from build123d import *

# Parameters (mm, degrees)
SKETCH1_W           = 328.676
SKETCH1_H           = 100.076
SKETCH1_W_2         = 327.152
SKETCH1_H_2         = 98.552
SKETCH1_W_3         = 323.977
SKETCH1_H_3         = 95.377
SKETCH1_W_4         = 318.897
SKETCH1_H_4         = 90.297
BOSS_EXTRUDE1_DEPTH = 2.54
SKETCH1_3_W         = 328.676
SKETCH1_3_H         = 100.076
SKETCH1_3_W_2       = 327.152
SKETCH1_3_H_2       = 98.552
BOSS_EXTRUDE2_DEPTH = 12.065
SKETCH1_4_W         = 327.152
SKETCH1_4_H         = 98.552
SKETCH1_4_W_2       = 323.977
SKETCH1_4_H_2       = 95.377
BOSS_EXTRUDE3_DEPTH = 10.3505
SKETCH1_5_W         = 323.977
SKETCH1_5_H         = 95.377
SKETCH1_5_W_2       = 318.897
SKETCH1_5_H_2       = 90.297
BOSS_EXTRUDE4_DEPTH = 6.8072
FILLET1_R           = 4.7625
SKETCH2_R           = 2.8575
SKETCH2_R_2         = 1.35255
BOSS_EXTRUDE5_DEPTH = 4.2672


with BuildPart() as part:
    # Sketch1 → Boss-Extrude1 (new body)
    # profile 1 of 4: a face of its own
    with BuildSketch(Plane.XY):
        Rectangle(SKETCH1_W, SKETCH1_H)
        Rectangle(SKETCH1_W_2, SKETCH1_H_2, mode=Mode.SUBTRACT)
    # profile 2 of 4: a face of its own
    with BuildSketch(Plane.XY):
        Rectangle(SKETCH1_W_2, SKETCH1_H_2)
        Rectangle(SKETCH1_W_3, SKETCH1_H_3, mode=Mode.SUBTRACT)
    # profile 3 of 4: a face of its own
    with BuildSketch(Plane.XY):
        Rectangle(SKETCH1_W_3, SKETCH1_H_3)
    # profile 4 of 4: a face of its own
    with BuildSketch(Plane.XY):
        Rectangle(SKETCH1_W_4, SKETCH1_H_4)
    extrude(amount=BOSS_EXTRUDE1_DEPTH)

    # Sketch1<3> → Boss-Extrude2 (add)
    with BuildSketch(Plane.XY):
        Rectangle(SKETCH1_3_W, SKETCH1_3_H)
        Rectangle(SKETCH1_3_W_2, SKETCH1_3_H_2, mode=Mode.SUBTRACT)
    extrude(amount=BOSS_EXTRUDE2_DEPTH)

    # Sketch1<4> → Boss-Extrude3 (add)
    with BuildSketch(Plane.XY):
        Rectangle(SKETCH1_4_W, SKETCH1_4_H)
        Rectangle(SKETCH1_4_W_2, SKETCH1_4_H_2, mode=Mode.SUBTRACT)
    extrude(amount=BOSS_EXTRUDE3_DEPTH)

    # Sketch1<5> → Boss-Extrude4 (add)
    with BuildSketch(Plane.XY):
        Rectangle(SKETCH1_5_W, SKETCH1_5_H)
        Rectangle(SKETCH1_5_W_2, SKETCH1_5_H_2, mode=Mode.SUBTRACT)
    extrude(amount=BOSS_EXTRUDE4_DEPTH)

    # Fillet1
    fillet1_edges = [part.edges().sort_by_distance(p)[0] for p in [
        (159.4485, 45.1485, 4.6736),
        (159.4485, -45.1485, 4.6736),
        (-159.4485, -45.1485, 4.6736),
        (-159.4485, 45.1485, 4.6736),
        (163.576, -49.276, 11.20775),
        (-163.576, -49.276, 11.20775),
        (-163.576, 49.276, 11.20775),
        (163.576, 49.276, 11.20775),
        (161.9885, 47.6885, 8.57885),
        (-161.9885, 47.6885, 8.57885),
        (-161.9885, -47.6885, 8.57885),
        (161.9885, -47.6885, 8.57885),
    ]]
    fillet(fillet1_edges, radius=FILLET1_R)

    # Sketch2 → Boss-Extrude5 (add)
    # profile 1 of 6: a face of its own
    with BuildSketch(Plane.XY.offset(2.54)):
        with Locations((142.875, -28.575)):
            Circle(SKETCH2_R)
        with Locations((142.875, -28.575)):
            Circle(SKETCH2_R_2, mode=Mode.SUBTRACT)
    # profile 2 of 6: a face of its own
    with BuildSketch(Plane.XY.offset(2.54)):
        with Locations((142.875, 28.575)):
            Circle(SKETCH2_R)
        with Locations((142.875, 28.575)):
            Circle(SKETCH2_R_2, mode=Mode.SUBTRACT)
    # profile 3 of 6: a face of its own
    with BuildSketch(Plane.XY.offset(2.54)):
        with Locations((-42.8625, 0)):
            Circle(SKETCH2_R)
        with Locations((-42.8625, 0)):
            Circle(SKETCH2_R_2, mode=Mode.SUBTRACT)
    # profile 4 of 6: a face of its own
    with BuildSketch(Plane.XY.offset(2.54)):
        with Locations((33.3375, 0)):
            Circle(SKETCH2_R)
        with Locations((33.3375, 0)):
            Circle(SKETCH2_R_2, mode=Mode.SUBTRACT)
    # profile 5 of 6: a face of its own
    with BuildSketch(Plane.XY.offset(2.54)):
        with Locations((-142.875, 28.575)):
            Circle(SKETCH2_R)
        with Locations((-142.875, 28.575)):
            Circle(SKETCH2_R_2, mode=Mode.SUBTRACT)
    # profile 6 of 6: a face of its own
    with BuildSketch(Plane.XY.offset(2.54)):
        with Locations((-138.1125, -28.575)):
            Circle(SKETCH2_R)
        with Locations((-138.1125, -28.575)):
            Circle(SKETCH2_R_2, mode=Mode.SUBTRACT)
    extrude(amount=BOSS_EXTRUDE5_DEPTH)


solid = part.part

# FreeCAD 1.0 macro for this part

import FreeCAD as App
import Part
import Sketcher

V = App.Vector
Q = App.Units.Quantity


def edges_at(feature, points):
    """Names of the edges that pass closest to the given points."""
    edges = feature.Shape.Edges
    near = lambda p: min(range(len(edges)), key=lambda i: edges[i].distToShape(Part.Vertex(*p))[0])
    return sorted({f"Edge{near(p) + 1}" for p in points})

doc = App.newDocument("Part")
body = doc.addObject("PartDesign::Body", "Body")

# Sketch on XY plane
sketch1 = body.newObject("Sketcher::SketchObject", "Sketch")
sketch1.AttachmentSupport = (doc.getObject("XY_Plane"), [""])
sketch1.MapMode = "FlatFace"
sketch1.addGeometry(Part.LineSegment(V(-164, 50, 0), V(-164, -50, 0)), False)
sketch1.addGeometry(Part.LineSegment(V(-164, -50, 0), V(164, -50, 0)), False)
sketch1.addGeometry(Part.LineSegment(V(164, -50, 0), V(164, 50, 0)), False)
sketch1.addGeometry(Part.LineSegment(V(164, 50, 0), V(-164, 50, 0)), False)
sketch1.addConstraint(Sketcher.Constraint("Coincident", 0, 2, 1, 1))
sketch1.addConstraint(Sketcher.Constraint("Coincident", 1, 2, 2, 1))
sketch1.addConstraint(Sketcher.Constraint("Coincident", 2, 2, 3, 1))
sketch1.addConstraint(Sketcher.Constraint("Coincident", 3, 2, 0, 1))
sketch1.addConstraint(Sketcher.Constraint("Vertical", 0))
sketch1.addConstraint(Sketcher.Constraint("Horizontal", 1))
sketch1.addConstraint(Sketcher.Constraint("Vertical", 2))
sketch1.addConstraint(Sketcher.Constraint("Horizontal", 3))
sketch1.addConstraint(Sketcher.Constraint("Symmetric", 0, 2, 2, 2, -1, 1))
sketch1.addConstraint(Sketcher.Constraint("DistanceX", 1, 1, 1, 2, Q("12.94 in")))
sketch1.addConstraint(Sketcher.Constraint("DistanceY", 0, 2, 0, 1, Q("3.94 in")))
pad1 = body.newObject("PartDesign::Pad", "Pad")
pad1.Profile = sketch1
pad1.Length = Q("0.1 in")

# Sketch on XY plane
sketch2 = body.newObject("Sketcher::SketchObject", "Sketch001")
sketch2.AttachmentSupport = (doc.getObject("XY_Plane"), [""])
sketch2.MapMode = "FlatFace"
sketch2.addGeometry(Part.LineSegment(V(-164, 50, 0), V(-164, -50, 0)), False)
sketch2.addGeometry(Part.LineSegment(V(-164, -50, 0), V(164, -50, 0)), False)
sketch2.addGeometry(Part.LineSegment(V(164, -50, 0), V(164, 50, 0)), False)
sketch2.addGeometry(Part.LineSegment(V(164, 50, 0), V(-164, 50, 0)), False)
sketch2.addGeometry(Part.LineSegment(V(164, -49, 0), V(-164, -49, 0)), False)
sketch2.addGeometry(Part.LineSegment(V(-164, -49, 0), V(-164, 49, 0)), False)
sketch2.addGeometry(Part.LineSegment(V(-164, 49, 0), V(164, 49, 0)), False)
sketch2.addGeometry(Part.LineSegment(V(164, 49, 0), V(164, -49, 0)), False)
sketch2.addConstraint(Sketcher.Constraint("Coincident", 0, 2, 1, 1))
sketch2.addConstraint(Sketcher.Constraint("Coincident", 1, 2, 2, 1))
sketch2.addConstraint(Sketcher.Constraint("Coincident", 2, 2, 3, 1))
sketch2.addConstraint(Sketcher.Constraint("Coincident", 3, 2, 0, 1))
sketch2.addConstraint(Sketcher.Constraint("Coincident", 4, 2, 5, 1))
sketch2.addConstraint(Sketcher.Constraint("Coincident", 5, 2, 6, 1))
sketch2.addConstraint(Sketcher.Constraint("Coincident", 6, 2, 7, 1))
sketch2.addConstraint(Sketcher.Constraint("Coincident", 7, 2, 4, 1))
sketch2.addConstraint(Sketcher.Constraint("Vertical", 0))
sketch2.addConstraint(Sketcher.Constraint("Horizontal", 1))
sketch2.addConstraint(Sketcher.Constraint("Vertical", 2))
sketch2.addConstraint(Sketcher.Constraint("Horizontal", 3))
sketch2.addConstraint(Sketcher.Constraint("Horizontal", 4))
sketch2.addConstraint(Sketcher.Constraint("Vertical", 5))
sketch2.addConstraint(Sketcher.Constraint("Horizontal", 6))
sketch2.addConstraint(Sketcher.Constraint("Vertical", 7))
sketch2.addConstraint(Sketcher.Constraint("Symmetric", 0, 2, 2, 2, -1, 1))
sketch2.addConstraint(Sketcher.Constraint("Symmetric", 4, 2, 6, 2, -1, 1))
sketch2.addConstraint(Sketcher.Constraint("DistanceX", 1, 1, 1, 2, Q("12.94 in")))
sketch2.addConstraint(Sketcher.Constraint("DistanceX", 4, 2, 4, 1, Q("12.88 in")))
sketch2.addConstraint(Sketcher.Constraint("DistanceY", 0, 2, 0, 1, Q("3.94 in")))
sketch2.addConstraint(Sketcher.Constraint("DistanceY", 5, 1, 5, 2, Q("3.88 in")))
pad2 = body.newObject("PartDesign::Pad", "Pad001")
pad2.Profile = sketch2
pad2.Length = Q("0.475 in")

# Sketch on XY plane
sketch3 = body.newObject("Sketcher::SketchObject", "Sketch002")
sketch3.AttachmentSupport = (doc.getObject("XY_Plane"), [""])
sketch3.MapMode = "FlatFace"
sketch3.addGeometry(Part.LineSegment(V(-164, 49, 0), V(-164, -49, 0)), False)
sketch3.addGeometry(Part.LineSegment(V(-164, -49, 0), V(164, -49, 0)), False)
sketch3.addGeometry(Part.LineSegment(V(164, -49, 0), V(164, 49, 0)), False)
sketch3.addGeometry(Part.LineSegment(V(164, 49, 0), V(-164, 49, 0)), False)
sketch3.addGeometry(Part.LineSegment(V(162, -48, 0), V(-162, -48, 0)), False)
sketch3.addGeometry(Part.LineSegment(V(-162, -48, 0), V(-162, 48, 0)), False)
sketch3.addGeometry(Part.LineSegment(V(-162, 48, 0), V(162, 48, 0)), False)
sketch3.addGeometry(Part.LineSegment(V(162, 48, 0), V(162, -48, 0)), False)
sketch3.addConstraint(Sketcher.Constraint("Coincident", 0, 2, 1, 1))
sketch3.addConstraint(Sketcher.Constraint("Coincident", 1, 2, 2, 1))
sketch3.addConstraint(Sketcher.Constraint("Coincident", 2, 2, 3, 1))
sketch3.addConstraint(Sketcher.Constraint("Coincident", 3, 2, 0, 1))
sketch3.addConstraint(Sketcher.Constraint("Coincident", 4, 2, 5, 1))
sketch3.addConstraint(Sketcher.Constraint("Coincident", 5, 2, 6, 1))
sketch3.addConstraint(Sketcher.Constraint("Coincident", 6, 2, 7, 1))
sketch3.addConstraint(Sketcher.Constraint("Coincident", 7, 2, 4, 1))
sketch3.addConstraint(Sketcher.Constraint("Vertical", 0))
sketch3.addConstraint(Sketcher.Constraint("Horizontal", 1))
sketch3.addConstraint(Sketcher.Constraint("Vertical", 2))
sketch3.addConstraint(Sketcher.Constraint("Horizontal", 3))
sketch3.addConstraint(Sketcher.Constraint("Horizontal", 4))
sketch3.addConstraint(Sketcher.Constraint("Vertical", 5))
sketch3.addConstraint(Sketcher.Constraint("Horizontal", 6))
sketch3.addConstraint(Sketcher.Constraint("Vertical", 7))
sketch3.addConstraint(Sketcher.Constraint("Symmetric", 0, 2, 2, 2, -1, 1))
sketch3.addConstraint(Sketcher.Constraint("Symmetric", 4, 2, 6, 2, -1, 1))
sketch3.addConstraint(Sketcher.Constraint("DistanceX", 1, 1, 1, 2, Q("12.88 in")))
sketch3.addConstraint(Sketcher.Constraint("DistanceY", 0, 2, 0, 1, Q("3.88 in")))
sketch3.addConstraint(Sketcher.Constraint("DistanceX", 4, 2, 4, 1, Q("12.755 in")))
sketch3.addConstraint(Sketcher.Constraint("DistanceY", 5, 1, 5, 2, Q("3.755 in")))
pad3 = body.newObject("PartDesign::Pad", "Pad002")
pad3.Profile = sketch3
pad3.Length = Q("0.4075 in")

# Sketch on XY plane
sketch4 = body.newObject("Sketcher::SketchObject", "Sketch003")
sketch4.AttachmentSupport = (doc.getObject("XY_Plane"), [""])
sketch4.MapMode = "FlatFace"
sketch4.addGeometry(Part.LineSegment(V(-162, 48, 0), V(-162, -48, 0)), False)
sketch4.addGeometry(Part.LineSegment(V(-162, -48, 0), V(162, -48, 0)), False)
sketch4.addGeometry(Part.LineSegment(V(162, -48, 0), V(162, 48, 0)), False)
sketch4.addGeometry(Part.LineSegment(V(162, 48, 0), V(-162, 48, 0)), False)
sketch4.addGeometry(Part.LineSegment(V(159, -45, 0), V(-159, -45, 0)), False)
sketch4.addGeometry(Part.LineSegment(V(-159, -45, 0), V(-159, 45, 0)), False)
sketch4.addGeometry(Part.LineSegment(V(-159, 45, 0), V(159, 45, 0)), False)
sketch4.addGeometry(Part.LineSegment(V(159, 45, 0), V(159, -45, 0)), False)
sketch4.addConstraint(Sketcher.Constraint("Coincident", 0, 2, 1, 1))
sketch4.addConstraint(Sketcher.Constraint("Coincident", 1, 2, 2, 1))
sketch4.addConstraint(Sketcher.Constraint("Coincident", 2, 2, 3, 1))
sketch4.addConstraint(Sketcher.Constraint("Coincident", 3, 2, 0, 1))
sketch4.addConstraint(Sketcher.Constraint("Coincident", 4, 2, 5, 1))
sketch4.addConstraint(Sketcher.Constraint("Coincident", 5, 2, 6, 1))
sketch4.addConstraint(Sketcher.Constraint("Coincident", 6, 2, 7, 1))
sketch4.addConstraint(Sketcher.Constraint("Coincident", 7, 2, 4, 1))
sketch4.addConstraint(Sketcher.Constraint("Vertical", 0))
sketch4.addConstraint(Sketcher.Constraint("Horizontal", 1))
sketch4.addConstraint(Sketcher.Constraint("Vertical", 2))
sketch4.addConstraint(Sketcher.Constraint("Horizontal", 3))
sketch4.addConstraint(Sketcher.Constraint("Horizontal", 4))
sketch4.addConstraint(Sketcher.Constraint("Vertical", 5))
sketch4.addConstraint(Sketcher.Constraint("Horizontal", 6))
sketch4.addConstraint(Sketcher.Constraint("Vertical", 7))
sketch4.addConstraint(Sketcher.Constraint("Symmetric", 0, 2, 2, 2, -1, 1))
sketch4.addConstraint(Sketcher.Constraint("Symmetric", 4, 2, 6, 2, -1, 1))
sketch4.addConstraint(Sketcher.Constraint("DistanceX", 0, 2, 4, 2, Q("0.1 in")))
sketch4.addConstraint(Sketcher.Constraint("DistanceY", 0, 2, 4, 2, Q("0.1 in")))
sketch4.addConstraint(Sketcher.Constraint("DistanceX", 1, 1, 1, 2, Q("12.755 in")))
sketch4.addConstraint(Sketcher.Constraint("DistanceY", 0, 2, 0, 1, Q("3.755 in")))
pad4 = body.newObject("PartDesign::Pad", "Pad003")
pad4.Profile = sketch4
pad4.Length = Q("0.268 in")
doc.recompute()

fillet = body.newObject("PartDesign::Fillet", "Fillet")
fillet.Base = (pad4, edges_at(pad4, [
    (159.448, 45.148, 4.674),
    (159.448, -45.148, 4.674),
    (-159.448, -45.148, 4.674),
    (-159.448, 45.148, 4.674),
    (163.576, -49.276, 11.208),
    (-163.576, -49.276, 11.208),
    (-163.576, 49.276, 11.208),
    (163.576, 49.276, 11.208),
    (161.988, 47.688, 8.579),
    (-161.988, 47.688, 8.579),
    (-161.988, -47.688, 8.579),
    (161.988, -47.688, 8.579),
]))
fillet.Radius = Q("0.1875 in")

# Sketch on XY plane
sketch5 = body.newObject("Sketcher::SketchObject", "Sketch004")
sketch5.AttachmentSupport = (doc.getObject("XY_Plane"), [""])
sketch5.MapMode = "FlatFace"
sketch5.AttachmentOffset = App.Placement(V(0, 0, 0.1 * 25.4), App.Rotation())
sketch5.addGeometry(Part.Circle(V(142.9, -28.6, 0), V(0, 0, 1), 2.9), False)
sketch5.addGeometry(Part.Circle(V(142.9, -28.6, 0), V(0, 0, 1), 1.4), False)
sketch5.addGeometry(Part.Circle(V(142.9, 28.6, 0), V(0, 0, 1), 2.9), False)
sketch5.addGeometry(Part.Circle(V(142.9, 28.6, 0), V(0, 0, 1), 1.4), False)
sketch5.addGeometry(Part.Circle(V(-42.9, 0, 0), V(0, 0, 1), 2.9), False)
sketch5.addGeometry(Part.Circle(V(-42.9, 0, 0), V(0, 0, 1), 1.4), False)
sketch5.addGeometry(Part.Circle(V(33.3, 0, 0), V(0, 0, 1), 2.9), False)
sketch5.addGeometry(Part.Circle(V(33.3, 0, 0), V(0, 0, 1), 1.4), False)
sketch5.addGeometry(Part.Circle(V(-142.9, 28.6, 0), V(0, 0, 1), 2.9), False)
sketch5.addGeometry(Part.Circle(V(-142.9, 28.6, 0), V(0, 0, 1), 1.4), False)
sketch5.addGeometry(Part.Circle(V(-138.1, -28.6, 0), V(0, 0, 1), 2.9), False)
sketch5.addGeometry(Part.Circle(V(-138.1, -28.6, 0), V(0, 0, 1), 1.4), False)
sketch5.addConstraint(Sketcher.Constraint("Coincident", 1, 3, 0, 3))
sketch5.addConstraint(Sketcher.Constraint("Coincident", 3, 3, 2, 3))
sketch5.addConstraint(Sketcher.Constraint("Coincident", 5, 3, 4, 3))
sketch5.addConstraint(Sketcher.Constraint("Coincident", 7, 3, 6, 3))
sketch5.addConstraint(Sketcher.Constraint("Coincident", 9, 3, 8, 3))
sketch5.addConstraint(Sketcher.Constraint("Coincident", 11, 3, 10, 3))
sketch5.addConstraint(Sketcher.Constraint("Equal", 0, 2))
sketch5.addConstraint(Sketcher.Constraint("Equal", 1, 3))
sketch5.addConstraint(Sketcher.Constraint("Equal", 2, 4))
sketch5.addConstraint(Sketcher.Constraint("Equal", 3, 5))
sketch5.addConstraint(Sketcher.Constraint("Equal", 4, 6))
sketch5.addConstraint(Sketcher.Constraint("Equal", 5, 7))
sketch5.addConstraint(Sketcher.Constraint("Equal", 6, 8))
sketch5.addConstraint(Sketcher.Constraint("Equal", 7, 9))
sketch5.addConstraint(Sketcher.Constraint("Equal", 8, 10))
sketch5.addConstraint(Sketcher.Constraint("Equal", 9, 11))
sketch5.addConstraint(Sketcher.Constraint("Symmetric", 0, 3, 8, 3, -1, 1))
sketch5.addConstraint(Sketcher.Constraint("Symmetric", 2, 3, 8, 3, -2))
sketch5.addConstraint(Sketcher.Constraint("PointOnObject", 4, 3, -1))
sketch5.addConstraint(Sketcher.Constraint("PointOnObject", 6, 3, -1))
sketch5.addConstraint(Sketcher.Constraint("Horizontal", 1, 3, 10, 3))
sketch5.addConstraint(Sketcher.Constraint("Diameter", 0, Q("0.225 in")))
sketch5.addConstraint(Sketcher.Constraint("DistanceX", 4, 3, 6, 3, Q("3 in")))
sketch5.addConstraint(Sketcher.Constraint("Diameter", 1, Q("0.1065 in")))
sketch5.addConstraint(Sketcher.Constraint("DistanceY", 0, 3, 2, 3, Q("2.25 in")))
sketch5.addConstraint(Sketcher.Constraint("DistanceX", 8, 3, 2, 3, Q("11.25 in")))
sketch5.addConstraint(Sketcher.Constraint("DistanceX", 10, 3, 4, 3, Q("3.75 in")))
sketch5.addConstraint(Sketcher.Constraint("DistanceX", 4, 3, -1, 1, Q("1.6875 in")))
pad5 = body.newObject("PartDesign::Pad", "Pad004")
pad5.Profile = sketch5
pad5.Length = Q("0.168 in")

doc.recompute()
